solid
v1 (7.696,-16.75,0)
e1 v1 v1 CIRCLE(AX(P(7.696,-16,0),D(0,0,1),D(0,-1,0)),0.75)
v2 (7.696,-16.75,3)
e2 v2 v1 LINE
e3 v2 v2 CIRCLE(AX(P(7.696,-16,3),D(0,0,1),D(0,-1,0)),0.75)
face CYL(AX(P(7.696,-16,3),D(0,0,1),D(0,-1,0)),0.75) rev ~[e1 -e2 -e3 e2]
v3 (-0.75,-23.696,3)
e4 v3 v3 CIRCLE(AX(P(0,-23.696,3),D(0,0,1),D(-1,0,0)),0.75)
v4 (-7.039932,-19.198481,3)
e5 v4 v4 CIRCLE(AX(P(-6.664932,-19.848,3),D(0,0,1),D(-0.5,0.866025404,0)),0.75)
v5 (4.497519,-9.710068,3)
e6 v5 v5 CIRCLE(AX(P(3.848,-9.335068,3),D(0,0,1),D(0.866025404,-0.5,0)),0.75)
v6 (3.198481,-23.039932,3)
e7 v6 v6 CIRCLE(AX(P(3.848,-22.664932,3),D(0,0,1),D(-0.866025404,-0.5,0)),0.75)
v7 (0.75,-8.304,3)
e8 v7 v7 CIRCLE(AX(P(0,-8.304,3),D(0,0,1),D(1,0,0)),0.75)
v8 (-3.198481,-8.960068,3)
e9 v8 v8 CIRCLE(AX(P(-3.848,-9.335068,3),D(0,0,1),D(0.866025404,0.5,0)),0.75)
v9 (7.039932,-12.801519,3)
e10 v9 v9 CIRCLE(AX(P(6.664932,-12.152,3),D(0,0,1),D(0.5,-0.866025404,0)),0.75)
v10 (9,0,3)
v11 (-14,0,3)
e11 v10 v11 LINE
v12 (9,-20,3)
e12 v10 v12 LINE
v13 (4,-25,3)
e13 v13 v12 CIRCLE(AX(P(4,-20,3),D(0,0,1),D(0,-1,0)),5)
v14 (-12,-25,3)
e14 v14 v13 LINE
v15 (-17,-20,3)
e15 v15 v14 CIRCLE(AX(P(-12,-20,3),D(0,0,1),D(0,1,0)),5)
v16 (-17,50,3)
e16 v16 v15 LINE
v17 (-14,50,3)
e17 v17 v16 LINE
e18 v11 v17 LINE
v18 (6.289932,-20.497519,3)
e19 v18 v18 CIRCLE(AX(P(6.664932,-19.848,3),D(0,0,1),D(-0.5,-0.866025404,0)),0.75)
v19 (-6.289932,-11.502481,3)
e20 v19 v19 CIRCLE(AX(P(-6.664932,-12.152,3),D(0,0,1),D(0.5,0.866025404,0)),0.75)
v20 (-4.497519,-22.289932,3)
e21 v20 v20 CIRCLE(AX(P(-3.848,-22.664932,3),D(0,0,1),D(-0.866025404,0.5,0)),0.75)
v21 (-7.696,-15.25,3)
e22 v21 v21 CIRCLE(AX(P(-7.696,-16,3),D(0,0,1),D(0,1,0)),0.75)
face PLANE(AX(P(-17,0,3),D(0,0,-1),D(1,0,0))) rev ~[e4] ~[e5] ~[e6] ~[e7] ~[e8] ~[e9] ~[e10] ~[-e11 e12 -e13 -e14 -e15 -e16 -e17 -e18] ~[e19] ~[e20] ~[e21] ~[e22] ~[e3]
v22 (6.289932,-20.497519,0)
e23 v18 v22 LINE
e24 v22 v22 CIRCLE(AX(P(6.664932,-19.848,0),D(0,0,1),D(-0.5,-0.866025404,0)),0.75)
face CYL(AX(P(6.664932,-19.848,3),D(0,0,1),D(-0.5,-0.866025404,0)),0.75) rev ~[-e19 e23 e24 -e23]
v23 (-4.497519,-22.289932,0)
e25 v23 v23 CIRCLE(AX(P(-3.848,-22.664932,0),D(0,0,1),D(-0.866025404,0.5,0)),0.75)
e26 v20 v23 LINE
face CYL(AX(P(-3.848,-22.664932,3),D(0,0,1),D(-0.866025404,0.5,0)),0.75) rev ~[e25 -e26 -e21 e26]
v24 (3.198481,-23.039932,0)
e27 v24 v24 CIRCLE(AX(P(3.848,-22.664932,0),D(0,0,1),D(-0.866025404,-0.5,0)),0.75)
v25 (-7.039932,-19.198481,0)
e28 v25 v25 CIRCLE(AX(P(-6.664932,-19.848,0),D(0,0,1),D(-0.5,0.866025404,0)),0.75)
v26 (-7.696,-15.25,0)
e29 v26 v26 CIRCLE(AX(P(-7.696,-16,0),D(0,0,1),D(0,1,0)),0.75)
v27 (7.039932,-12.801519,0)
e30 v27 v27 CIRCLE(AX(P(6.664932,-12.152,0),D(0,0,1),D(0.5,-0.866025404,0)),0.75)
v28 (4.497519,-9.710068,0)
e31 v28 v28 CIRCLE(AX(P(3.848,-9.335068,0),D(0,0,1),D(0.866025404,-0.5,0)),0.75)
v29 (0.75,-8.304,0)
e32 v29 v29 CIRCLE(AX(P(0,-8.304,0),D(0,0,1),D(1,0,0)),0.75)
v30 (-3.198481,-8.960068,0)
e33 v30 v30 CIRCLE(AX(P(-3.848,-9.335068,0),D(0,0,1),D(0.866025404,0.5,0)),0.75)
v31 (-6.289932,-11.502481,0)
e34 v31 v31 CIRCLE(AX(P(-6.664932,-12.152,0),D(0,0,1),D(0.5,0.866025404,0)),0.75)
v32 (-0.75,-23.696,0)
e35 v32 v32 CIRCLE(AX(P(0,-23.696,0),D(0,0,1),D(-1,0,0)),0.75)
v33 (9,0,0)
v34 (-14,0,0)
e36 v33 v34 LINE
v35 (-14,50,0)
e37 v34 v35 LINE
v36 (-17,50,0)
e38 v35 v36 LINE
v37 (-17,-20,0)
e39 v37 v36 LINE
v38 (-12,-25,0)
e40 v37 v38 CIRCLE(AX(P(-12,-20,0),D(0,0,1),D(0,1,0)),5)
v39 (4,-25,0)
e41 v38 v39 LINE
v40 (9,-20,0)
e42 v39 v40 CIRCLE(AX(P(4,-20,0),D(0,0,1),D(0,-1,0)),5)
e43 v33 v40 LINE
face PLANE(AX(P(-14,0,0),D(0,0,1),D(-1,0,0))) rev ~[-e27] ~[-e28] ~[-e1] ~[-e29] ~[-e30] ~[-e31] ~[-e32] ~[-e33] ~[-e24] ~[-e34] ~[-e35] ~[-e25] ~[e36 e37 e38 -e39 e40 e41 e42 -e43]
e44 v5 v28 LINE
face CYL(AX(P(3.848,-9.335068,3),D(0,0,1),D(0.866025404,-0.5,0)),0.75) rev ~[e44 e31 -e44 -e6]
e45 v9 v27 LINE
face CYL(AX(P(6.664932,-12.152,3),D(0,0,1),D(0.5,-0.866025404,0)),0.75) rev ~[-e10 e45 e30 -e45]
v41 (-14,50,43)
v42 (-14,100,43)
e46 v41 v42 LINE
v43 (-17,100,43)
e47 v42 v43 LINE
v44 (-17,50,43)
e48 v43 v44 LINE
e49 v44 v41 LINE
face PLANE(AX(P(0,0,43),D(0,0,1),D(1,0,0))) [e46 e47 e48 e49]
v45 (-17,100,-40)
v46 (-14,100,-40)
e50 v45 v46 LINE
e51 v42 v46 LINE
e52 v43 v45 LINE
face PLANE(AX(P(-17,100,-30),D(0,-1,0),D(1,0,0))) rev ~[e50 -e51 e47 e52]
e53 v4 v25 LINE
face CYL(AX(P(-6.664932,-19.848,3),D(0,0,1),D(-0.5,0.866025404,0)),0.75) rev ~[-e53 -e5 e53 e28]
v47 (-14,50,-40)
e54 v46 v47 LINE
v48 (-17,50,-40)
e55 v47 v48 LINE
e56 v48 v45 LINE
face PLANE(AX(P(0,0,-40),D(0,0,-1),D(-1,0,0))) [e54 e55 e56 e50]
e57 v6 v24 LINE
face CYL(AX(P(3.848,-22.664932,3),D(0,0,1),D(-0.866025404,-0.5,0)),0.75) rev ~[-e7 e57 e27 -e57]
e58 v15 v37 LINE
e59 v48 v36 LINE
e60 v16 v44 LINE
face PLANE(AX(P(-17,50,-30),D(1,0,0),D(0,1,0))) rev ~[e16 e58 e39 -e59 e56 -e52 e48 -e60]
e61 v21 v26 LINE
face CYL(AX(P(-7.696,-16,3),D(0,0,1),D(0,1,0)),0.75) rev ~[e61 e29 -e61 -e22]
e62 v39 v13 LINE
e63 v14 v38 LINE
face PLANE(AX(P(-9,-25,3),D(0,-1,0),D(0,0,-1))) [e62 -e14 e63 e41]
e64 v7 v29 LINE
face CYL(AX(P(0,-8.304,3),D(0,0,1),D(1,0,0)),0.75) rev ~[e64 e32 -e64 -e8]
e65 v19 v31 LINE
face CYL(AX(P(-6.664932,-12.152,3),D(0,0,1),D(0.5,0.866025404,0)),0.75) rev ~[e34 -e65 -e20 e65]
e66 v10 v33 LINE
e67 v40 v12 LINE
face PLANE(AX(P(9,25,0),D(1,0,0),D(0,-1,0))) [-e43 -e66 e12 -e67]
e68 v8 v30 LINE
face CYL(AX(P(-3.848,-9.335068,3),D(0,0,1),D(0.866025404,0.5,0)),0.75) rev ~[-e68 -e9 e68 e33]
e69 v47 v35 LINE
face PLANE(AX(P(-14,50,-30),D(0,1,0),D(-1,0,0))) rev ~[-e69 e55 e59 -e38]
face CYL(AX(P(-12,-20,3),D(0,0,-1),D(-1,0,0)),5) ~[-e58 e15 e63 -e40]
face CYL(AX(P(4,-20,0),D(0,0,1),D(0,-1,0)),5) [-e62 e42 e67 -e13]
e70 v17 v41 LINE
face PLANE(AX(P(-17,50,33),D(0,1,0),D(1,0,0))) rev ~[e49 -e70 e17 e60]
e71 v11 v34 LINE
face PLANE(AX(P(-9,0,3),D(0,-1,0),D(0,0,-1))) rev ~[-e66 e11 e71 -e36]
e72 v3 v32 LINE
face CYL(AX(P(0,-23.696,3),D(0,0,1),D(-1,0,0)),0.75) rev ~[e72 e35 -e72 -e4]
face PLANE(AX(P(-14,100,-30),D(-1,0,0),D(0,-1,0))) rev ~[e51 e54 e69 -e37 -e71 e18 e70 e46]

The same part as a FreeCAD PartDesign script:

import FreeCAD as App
import Part
import Sketcher
from FreeCAD import Vector
Q = App.Units.Quantity


def edges_at(feature, points):
    """Names of the edges that pass closest to the given points."""
    edges = feature.Shape.Edges
    near = lambda p: min(range(len(edges)), key=lambda i: edges[i].distToShape(Part.Vertex(*p))[0])
    return sorted({f"Edge{near(p) + 1}" for p in points})

doc = App.newDocument("Part")
params = doc.addObject("Spreadsheet::Sheet", "Params")
for row, (alias, value) in enumerate([
    ("sketch1_width", "18 mm"),
    ("sketch1_height", "50 mm"),
    ("pad1_length", "3 mm"),
    ("sketch2_diameter", "1.5 mm"),
    ("pocket1_length", "3 mm"),
    ("sketch3_width", "30 mm"),
    ("pocket2_length", "3 mm"),
    ("sketch4_width", "25 mm"),
    ("sketch4_height", "3 mm"),
    ("pad2_length", "8 mm"),
    ("fillet_radius", "5 mm"),
    ("sketch5_width", "3 mm"),
    ("pad3_length", "70 mm"),
    ("fillet2_radius", "5 mm"),
    ("sketch6_height", "20 mm"),
    ("sketch6_width", "3 mm"),
    ("pad4_length", "30 mm"),
    ("sketch7_height", "20 mm"),
    ("sketch7_width", "3 mm"),
    ("pad5_length", "30 mm"),
    ("sketch8_width", "3 mm"),
    ("sketch8_height", "63 mm"),
    ("pad6_length", "30 mm"),
    ("sketch9_width", "3 mm"),
    ("sketch9_height", "50 mm"),
    ("pad7_length", "10 mm"),
    ("sketch10_width", "3 mm"),
    ("sketch10_height", "50 mm"),
    ("pad8_length", "10 mm"),
], start=1):
    params.set(f"A{row}", alias)
    params.set(f"B{row}", "=" + value)
    params.setAlias(f"B{row}", alias)

body = doc.addObject("PartDesign::Body", "Body")

# Sketch on XY plane
sketch1 = doc.addObject("Sketcher::SketchObject", "Sketch")
body.addObject(sketch1)
sketch1.AttachmentSupport = (doc.XY_Plane, [""])
sketch1.MapMode = "FlatFace"
sketch1.addGeometry(Part.LineSegment(Vector(9, 25, 0), Vector(-9, 25, 0)), False)
sketch1.addGeometry(Part.LineSegment(Vector(-9, 25, 0), Vector(-9, -25, 0)), False)
sketch1.addGeometry(Part.LineSegment(Vector(-9, -25, 0), Vector(9, -25, 0)), False)
sketch1.addGeometry(Part.LineSegment(Vector(9, -25, 0), Vector(9, 25, 0)), False)
sketch1.addConstraint(Sketcher.Constraint("Coincident", 0, 2, 1, 1))
sketch1.addConstraint(Sketcher.Constraint("Coincident", 1, 2, 2, 1))
sketch1.addConstraint(Sketcher.Constraint("Coincident", 2, 2, 3, 1))
sketch1.addConstraint(Sketcher.Constraint("Coincident", 3, 2, 0, 1))
sketch1.addConstraint(Sketcher.Constraint("Horizontal", 0))
sketch1.addConstraint(Sketcher.Constraint("Vertical", 1))
sketch1.addConstraint(Sketcher.Constraint("Horizontal", 2))
sketch1.addConstraint(Sketcher.Constraint("Vertical", 3))
sketch1.addConstraint(Sketcher.Constraint("Symmetric", 0, 2, 2, 2, -1, 1))
sketch1.addConstraint(Sketcher.Constraint("DistanceX", 0, 2, 0, 1, Q("18 mm")))
sketch1.addConstraint(Sketcher.Constraint("DistanceY", 1, 2, 1, 1, Q("50 mm")))
sketch1.setExpression("Constraints[9]", "Params.sketch1_width")
sketch1.setExpression("Constraints[10]", "Params.sketch1_height")
pad1 = doc.addObject("PartDesign::Pad", "Pad")
body.addObject(pad1)
pad1.Profile = sketch1
pad1.setExpression("Length", "Params.pad1_length")

# Sketch on XY plane
sketch2 = doc.addObject("Sketcher::SketchObject", "Sketch001")
body.addObject(sketch2)
sketch2.AttachmentSupport = (doc.XY_Plane, [""])
sketch2.MapMode = "FlatFace"
sketch2.AttachmentOffset = App.Placement(Vector(0, 0, 3), App.Rotation())
sketch2.addGeometry(Part.Circle(Vector(0, -8.304, 0), Vector(0, 0, 1), 0.75), False)
sketch2.addConstraint(Sketcher.Constraint("PointOnObject", 0, 3, -2))
sketch2.addConstraint(Sketcher.Constraint("Diameter", 0, Q("1.5 mm")))
sketch2.addConstraint(Sketcher.Constraint("DistanceY", 0, 3, -1, 1, Q("8.304 mm")))
sketch2.setExpression("Constraints[1]", "Params.sketch2_diameter")
pocket1 = doc.addObject("PartDesign::Pocket", "Pocket")
body.addObject(pocket1)
pocket1.Profile = sketch2
pocket1.setExpression("Length", "Params.pocket1_length")
doc.recompute()

datumline = doc.addObject("PartDesign::Line", "DatumLine")
body.addObject(datumline)
datumline.Placement = App.Placement(Vector(0, -16, 0), App.Rotation(Vector(0, 0, 1), Vector(0, 0, 1)))
polarpattern = doc.addObject("PartDesign::PolarPattern", "PolarPattern")
body.addObject(polarpattern)
polarpattern.Originals = [pocket1]
polarpattern.Axis = (datumline, [""])
polarpattern.Angle = 360
polarpattern.Occurrences = 12
body.Tip = polarpattern

# Sketch on XY plane
sketch3 = doc.addObject("Sketcher::SketchObject", "Sketch002")
body.addObject(sketch3)
sketch3.AttachmentSupport = (doc.XY_Plane, [""])
sketch3.MapMode = "FlatFace"
sketch3.AttachmentOffset = App.Placement(Vector(0, 0, 3), App.Rotation())
sketch3.addGeometry(Part.LineSegment(Vector(-19, 28.3489, 0), Vector(-19, 0, 0)), False)
sketch3.addGeometry(Part.LineSegment(Vector(-19, 0, 0), Vector(11, 0, 0)), False)
sketch3.addGeometry(Part.LineSegment(Vector(11, 0, 0), Vector(11, 28.3489, 0)), False)
sketch3.addGeometry(Part.LineSegment(Vector(11, 28.3489, 0), Vector(-19, 28.3489, 0)), False)
sketch3.addConstraint(Sketcher.Constraint("Coincident", 0, 2, 1, 1))
sketch3.addConstraint(Sketcher.Constraint("Coincident", 1, 2, 2, 1))
sketch3.addConstraint(Sketcher.Constraint("Coincident", 2, 2, 3, 1))
sketch3.addConstraint(Sketcher.Constraint("Coincident", 3, 2, 0, 1))
sketch3.addConstraint(Sketcher.Constraint("Vertical", 0))
sketch3.addConstraint(Sketcher.Constraint("Horizontal", 1))
sketch3.addConstraint(Sketcher.Constraint("Vertical", 2))
sketch3.addConstraint(Sketcher.Constraint("Horizontal", 3))
sketch3.addConstraint(Sketcher.Constraint("PointOnObject", 0, 2, -1))
sketch3.addConstraint(Sketcher.Constraint("DistanceX", 1, 1, 1, 2, Q("30 mm")))
sketch3.addConstraint(Sketcher.Constraint("DistanceX", 0, 2, -1, 1, Q("19 mm")))
sketch3.addConstraint(Sketcher.Constraint("DistanceY", 0, 2, 0, 1, Q("28.349 mm")))
sketch3.setExpression("Constraints[9]", "Params.sketch3_width")
pocket2 = doc.addObject("PartDesign::Pocket", "Pocket001")
body.addObject(pocket2)
pocket2.Profile = sketch3
pocket2.setExpression("Length", "Params.pocket2_length")

# Sketch on YZ plane
sketch4 = doc.addObject("Sketcher::SketchObject", "Sketch003")
body.addObject(sketch4)
sketch4.AttachmentSupport = (doc.YZ_Plane, [""])
sketch4.MapMode = "FlatFace"
sketch4.AttachmentOffset = App.Placement(Vector(0, 0, -9), App.Rotation())
sketch4.addGeometry(Part.LineSegment(Vector(-25, 3, 0), Vector(0, 3, 0)), False)
sketch4.addGeometry(Part.LineSegment(Vector(0, 3, 0), Vector(0, 0, 0)), False)
sketch4.addGeometry(Part.LineSegment(Vector(0, 0, 0), Vector(-25, 0, 0)), False)
sketch4.addGeometry(Part.LineSegment(Vector(-25, 0, 0), Vector(-25, 3, 0)), False)
sketch4.addConstraint(Sketcher.Constraint("Coincident", 0, 2, 1, 1))
sketch4.addConstraint(Sketcher.Constraint("Coincident", 1, 2, 2, 1))
sketch4.addConstraint(Sketcher.Constraint("Coincident", 2, 2, 3, 1))
sketch4.addConstraint(Sketcher.Constraint("Coincident", 3, 2, 0, 1))
sketch4.addConstraint(Sketcher.Constraint("Horizontal", 0))
sketch4.addConstraint(Sketcher.Constraint("Vertical", 1))
sketch4.addConstraint(Sketcher.Constraint("Horizontal", 2))
sketch4.addConstraint(Sketcher.Constraint("Vertical", 3))
sketch4.addConstraint(Sketcher.Constraint("Coincident", 1, 2, -1, 1))
sketch4.addConstraint(Sketcher.Constraint("DistanceX", 0, 1, 0, 2, Q("25 mm")))
sketch4.addConstraint(Sketcher.Constraint("DistanceY", 1, 2, 1, 1, Q("3 mm")))
sketch4.setExpression("Constraints[9]", "Params.sketch4_width")
sketch4.setExpression("Constraints[10]", "Params.sketch4_height")
pad2 = doc.addObject("PartDesign::Pad", "Pad001")
body.addObject(pad2)
pad2.Profile = sketch4
pad2.setExpression("Length", "Params.pad2_length")
pad2.Reversed = True
doc.recompute()

fillet = doc.addObject("PartDesign::Fillet", "Fillet")
body.addObject(fillet)
fillet.Base = (pad2, edges_at(pad2, [(9, -25, 1.5)]))
fillet.setExpression("Radius", "Params.fillet_radius")

# Sketch on XZ plane
sketch5 = doc.addObject("Sketcher::SketchObject", "Sketch004")
body.addObject(sketch5)
sketch5.AttachmentSupport = (doc.XZ_Plane, [""])
sketch5.MapMode = "FlatFace"
sketch5.addGeometry(Part.LineSegment(Vector(-14, 3, 0), Vector(-14, 0, 0)), False)
sketch5.addGeometry(Part.LineSegment(Vector(-14, 0, 0), Vector(-17, 0, 0)), False)
sketch5.addGeometry(Part.LineSegment(Vector(-17, 0, 0), Vector(-17, 3, 0)), False)
sketch5.addGeometry(Part.LineSegment(Vector(-17, 3, 0), Vector(-14, 3, 0)), False)
sketch5.addConstraint(Sketcher.Constraint("Coincident", 0, 2, 1, 1))
sketch5.addConstraint(Sketcher.Constraint("Coincident", 1, 2, 2, 1))
sketch5.addConstraint(Sketcher.Constraint("Coincident", 2, 2, 3, 1))
sketch5.addConstraint(Sketcher.Constraint("Coincident", 3, 2, 0, 1))
sketch5.addConstraint(Sketcher.Constraint("Vertical", 0))
sketch5.addConstraint(Sketcher.Constraint("Horizontal", 1))
sketch5.addConstraint(Sketcher.Constraint("Vertical", 2))
sketch5.addConstraint(Sketcher.Constraint("Horizontal", 3))
sketch5.addConstraint(Sketcher.Constraint("PointOnObject", 0, 2, -1))
sketch5.addConstraint(Sketcher.Constraint("Equal", 3, 0))
sketch5.addConstraint(Sketcher.Constraint("DistanceX", 1, 2, 1, 1, Q("3 mm")))
sketch5.addConstraint(Sketcher.Constraint("DistanceX", 0, 2, -1, 1, Q("14 mm")))
sketch5.setExpression("Constraints[10]", "Params.sketch5_width")
pad3 = doc.addObject("PartDesign::Pad", "Pad002")
body.addObject(pad3)
pad3.Profile = sketch5
pad3.setExpression("Length", "Params.pad3_length")
pad3.Reversed = True
doc.recompute()

fillet2 = doc.addObject("PartDesign::Fillet", "Fillet001")
body.addObject(fillet2)
fillet2.Base = (pad3, edges_at(pad3, [(-17, -25, 1.5)]))
fillet2.setExpression("Radius", "Params.fillet2_radius")

# Sketch on XY plane
sketch6 = doc.addObject("Sketcher::SketchObject", "Sketch005")
body.addObject(sketch6)
sketch6.AttachmentSupport = (doc.XY_Plane, [""])
sketch6.MapMode = "FlatFace"
sketch6.AttachmentOffset = App.Placement(Vector(0, 0, 3), App.Rotation())
sketch6.addGeometry(Part.LineSegment(Vector(-17, 50, 0), Vector(-14, 50, 0)), False)
sketch6.addGeometry(Part.LineSegment(Vector(-14, 50, 0), Vector(-14, 70, 0)), False)
sketch6.addGeometry(Part.LineSegment(Vector(-14, 70, 0), Vector(-17, 70, 0)), False)
sketch6.addGeometry(Part.LineSegment(Vector(-17, 70, 0), Vector(-17, 50, 0)), False)
sketch6.addConstraint(Sketcher.Constraint("Coincident", 0, 2, 1, 1))
sketch6.addConstraint(Sketcher.Constraint("Coincident", 1, 2, 2, 1))
sketch6.addConstraint(Sketcher.Constraint("Coincident", 2, 2, 3, 1))
sketch6.addConstraint(Sketcher.Constraint("Coincident", 3, 2, 0, 1))
sketch6.addConstraint(Sketcher.Constraint("Horizontal", 0))
sketch6.addConstraint(Sketcher.Constraint("Vertical", 1))
sketch6.addConstraint(Sketcher.Constraint("Horizontal", 2))
sketch6.addConstraint(Sketcher.Constraint("Vertical", 3))
sketch6.addConstraint(Sketcher.Constraint("DistanceY", 1, 1, 1, 2, Q("20 mm")))
sketch6.addConstraint(Sketcher.Constraint("DistanceX", 0, 1, 0, 2, Q("3 mm")))
sketch6.addConstraint(Sketcher.Constraint("DistanceX", 0, 2, -1, 1, Q("14 mm")))
sketch6.addConstraint(Sketcher.Constraint("DistanceY", -1, 1, 0, 2, Q("50 mm")))
sketch6.setExpression("Constraints[8]", "Params.sketch6_height")
sketch6.setExpression("Constraints[9]", "Params.sketch6_width")
pad4 = doc.addObject("PartDesign::Pad", "Pad003")
body.addObject(pad4)
pad4.Profile = sketch6
pad4.setExpression("Length", "Params.pad4_length")

# Sketch on XY plane
sketch7 = doc.addObject("Sketcher::SketchObject", "Sketch006")
body.addObject(sketch7)
sketch7.AttachmentSupport = (doc.XY_Plane, [""])
sketch7.MapMode = "FlatFace"
sketch7.addGeometry(Part.LineSegment(Vector(-14, 70, 0), Vector(-14, 50, 0)), False)
sketch7.addGeometry(Part.LineSegment(Vector(-14, 50, 0), Vector(-17, 50, 0)), False)
sketch7.addGeometry(Part.LineSegment(Vector(-17, 50, 0), Vector(-17, 70, 0)), False)
sketch7.addGeometry(Part.LineSegment(Vector(-17, 70, 0), Vector(-14, 70, 0)), False)
sketch7.addConstraint(Sketcher.Constraint("Coincident", 0, 2, 1, 1))
sketch7.addConstraint(Sketcher.Constraint("Coincident", 1, 2, 2, 1))
sketch7.addConstraint(Sketcher.Constraint("Coincident", 2, 2, 3, 1))
sketch7.addConstraint(Sketcher.Constraint("Coincident", 3, 2, 0, 1))
sketch7.addConstraint(Sketcher.Constraint("Vertical", 0))
sketch7.addConstraint(Sketcher.Constraint("Horizontal", 1))
sketch7.addConstraint(Sketcher.Constraint("Vertical", 2))
sketch7.addConstraint(Sketcher.Constraint("Horizontal", 3))
sketch7.addConstraint(Sketcher.Constraint("DistanceY", 0, 2, 0, 1, Q("20 mm")))
sketch7.addConstraint(Sketcher.Constraint("DistanceX", 1, 2, 1, 1, Q("3 mm")))
sketch7.addConstraint(Sketcher.Constraint("DistanceX", 0, 2, -1, 1, Q("14 mm")))
sketch7.addConstraint(Sketcher.Constraint("DistanceY", -1, 1, 0, 2, Q("50 mm")))
sketch7.setExpression("Constraints[8]", "Params.sketch7_height")
sketch7.setExpression("Constraints[9]", "Params.sketch7_width")
pad5 = doc.addObject("PartDesign::Pad", "Pad004")
body.addObject(pad5)
pad5.Profile = sketch7
pad5.setExpression("Length", "Params.pad5_length")
pad5.Reversed = True

# Sketch on XZ plane
sketch8 = doc.addObject("Sketcher::SketchObject", "Sketch007")
body.addObject(sketch8)
sketch8.AttachmentSupport = (doc.XZ_Plane, [""])
sketch8.MapMode = "FlatFace"
sketch8.AttachmentOffset = App.Placement(Vector(0, 0, -70), App.Rotation())
sketch8.addGeometry(Part.LineSegment(Vector(-14, -30, 0), Vector(-17, -30, 0)), False)
sketch8.addGeometry(Part.LineSegment(Vector(-17, -30, 0), Vector(-17, 33, 0)), False)
sketch8.addGeometry(Part.LineSegment(Vector(-17, 33, 0), Vector(-14, 33, 0)), False)
sketch8.addGeometry(Part.LineSegment(Vector(-14, 33, 0), Vector(-14, -30, 0)), False)
sketch8.addConstraint(Sketcher.Constraint("Coincident", 0, 2, 1, 1))
sketch8.addConstraint(Sketcher.Constraint("Coincident", 1, 2, 2, 1))
sketch8.addConstraint(Sketcher.Constraint("Coincident", 2, 2, 3, 1))
sketch8.addConstraint(Sketcher.Constraint("Coincident", 3, 2, 0, 1))
sketch8.addConstraint(Sketcher.Constraint("Horizontal", 0))
sketch8.addConstraint(Sketcher.Constraint("Vertical", 1))
sketch8.addConstraint(Sketcher.Constraint("Horizontal", 2))
sketch8.addConstraint(Sketcher.Constraint("Vertical", 3))
sketch8.addConstraint(Sketcher.Constraint("DistanceX", 0, 2, 0, 1, Q("3 mm")))
sketch8.addConstraint(Sketcher.Constraint("DistanceY", 1, 1, 1, 2, Q("63 mm")))
sketch8.addConstraint(Sketcher.Constraint("DistanceX", 0, 2, -1, 1, Q("17 mm")))
sketch8.addConstraint(Sketcher.Constraint("DistanceY", 0, 2, -1, 1, Q("30 mm")))
sketch8.setExpression("Constraints[8]", "Params.sketch8_width")
sketch8.setExpression("Constraints[9]", "Params.sketch8_height")
pad6 = doc.addObject("PartDesign::Pad", "Pad005")
body.addObject(pad6)
pad6.Profile = sketch8
pad6.setExpression("Length", "Params.pad6_length")
pad6.Reversed = True

# Sketch on XY plane
sketch9 = doc.addObject("Sketcher::SketchObject", "Sketch008")
body.addObject(sketch9)
sketch9.AttachmentSupport = (doc.XY_Plane, [""])
sketch9.MapMode = "FlatFace"
sketch9.AttachmentOffset = App.Placement(Vector(0, 0, 33), App.Rotation())
sketch9.addGeometry(Part.LineSegment(Vector(-17, 100, 0), Vector(-17, 50, 0)), False)
sketch9.addGeometry(Part.LineSegment(Vector(-17, 50, 0), Vector(-14, 50, 0)), False)
sketch9.addGeometry(Part.LineSegment(Vector(-14, 50, 0), Vector(-14, 100, 0)), False)
sketch9.addGeometry(Part.LineSegment(Vector(-14, 100, 0), Vector(-17, 100, 0)), False)
sketch9.addConstraint(Sketcher.Constraint("Coincident", 0, 2, 1, 1))
sketch9.addConstraint(Sketcher.Constraint("Coincident", 1, 2, 2, 1))
sketch9.addConstraint(Sketcher.Constraint("Coincident", 2, 2, 3, 1))
sketch9.addConstraint(Sketcher.Constraint("Coincident", 3, 2, 0, 1))
sketch9.addConstraint(Sketcher.Constraint("Vertical", 0))
sketch9.addConstraint(Sketcher.Constraint("Horizontal", 1))
sketch9.addConstraint(Sketcher.Constraint("Vertical", 2))
sketch9.addConstraint(Sketcher.Constraint("Horizontal", 3))
sketch9.addConstraint(Sketcher.Constraint("DistanceX", 1, 1, 1, 2, Q("3 mm")))
sketch9.addConstraint(Sketcher.Constraint("DistanceY", 0, 2, 0, 1, Q("50 mm")))
sketch9.addConstraint(Sketcher.Constraint("DistanceX", 0, 2, -1, 1, Q("17 mm")))
sketch9.addConstraint(Sketcher.Constraint("DistanceY", -1, 1, 0, 2, Q("50 mm")))
sketch9.setExpression("Constraints[8]", "Params.sketch9_width")
sketch9.setExpression("Constraints[9]", "Params.sketch9_height")
pad7 = doc.addObject("PartDesign::Pad", "Pad006")
body.addObject(pad7)
pad7.Profile = sketch9
pad7.setExpression("Length", "Params.pad7_length")

# Sketch on XY plane
sketch10 = doc.addObject("Sketcher::SketchObject", "Sketch009")
body.addObject(sketch10)
sketch10.AttachmentSupport = (doc.XY_Plane, [""])
sketch10.MapMode = "FlatFace"
sketch10.AttachmentOffset = App.Placement(Vector(0, 0, -30), App.Rotation())
sketch10.addGeometry(Part.LineSegment(Vector(-17, 50, 0), Vector(-17, 100, 0)), False)
sketch10.addGeometry(Part.LineSegment(Vector(-17, 100, 0), Vector(-14, 100, 0)), False)
sketch10.addGeometry(Part.LineSegment(Vector(-14, 100, 0), Vector(-14, 50, 0)), False)
sketch10.addGeometry(Part.LineSegment(Vector(-14, 50, 0), Vector(-17, 50, 0)), False)
sketch10.addConstraint(Sketcher.Constraint("Coincident", 0, 2, 1, 1))
sketch10.addConstraint(Sketcher.Constraint("Coincident", 1, 2, 2, 1))
sketch10.addConstraint(Sketcher.Constraint("Coincident", 2, 2, 3, 1))
sketch10.addConstraint(Sketcher.Constraint("Coincident", 3, 2, 0, 1))
sketch10.addConstraint(Sketcher.Constraint("Vertical", 0))
sketch10.addConstraint(Sketcher.Constraint("Horizontal", 1))
sketch10.addConstraint(Sketcher.Constraint("Vertical", 2))
sketch10.addConstraint(Sketcher.Constraint("Horizontal", 3))
sketch10.addConstraint(Sketcher.Constraint("DistanceX", 1, 1, 1, 2, Q("3 mm")))
sketch10.addConstraint(Sketcher.Constraint("DistanceY", 0, 1, 0, 2, Q("50 mm")))
sketch10.addConstraint(Sketcher.Constraint("DistanceX", 0, 2, -1, 1, Q("17 mm")))
sketch10.addConstraint(Sketcher.Constraint("DistanceY", -1, 1, 0, 2, Q("100 mm")))
sketch10.setExpression("Constraints[8]", "Params.sketch10_width")
sketch10.setExpression("Constraints[9]", "Params.sketch10_height")
pad8 = doc.addObject("PartDesign::Pad", "Pad007")
body.addObject(pad8)
pad8.Profile = sketch10
pad8.setExpression("Length", "Params.pad8_length")
pad8.Reversed = True

doc.recompute()
